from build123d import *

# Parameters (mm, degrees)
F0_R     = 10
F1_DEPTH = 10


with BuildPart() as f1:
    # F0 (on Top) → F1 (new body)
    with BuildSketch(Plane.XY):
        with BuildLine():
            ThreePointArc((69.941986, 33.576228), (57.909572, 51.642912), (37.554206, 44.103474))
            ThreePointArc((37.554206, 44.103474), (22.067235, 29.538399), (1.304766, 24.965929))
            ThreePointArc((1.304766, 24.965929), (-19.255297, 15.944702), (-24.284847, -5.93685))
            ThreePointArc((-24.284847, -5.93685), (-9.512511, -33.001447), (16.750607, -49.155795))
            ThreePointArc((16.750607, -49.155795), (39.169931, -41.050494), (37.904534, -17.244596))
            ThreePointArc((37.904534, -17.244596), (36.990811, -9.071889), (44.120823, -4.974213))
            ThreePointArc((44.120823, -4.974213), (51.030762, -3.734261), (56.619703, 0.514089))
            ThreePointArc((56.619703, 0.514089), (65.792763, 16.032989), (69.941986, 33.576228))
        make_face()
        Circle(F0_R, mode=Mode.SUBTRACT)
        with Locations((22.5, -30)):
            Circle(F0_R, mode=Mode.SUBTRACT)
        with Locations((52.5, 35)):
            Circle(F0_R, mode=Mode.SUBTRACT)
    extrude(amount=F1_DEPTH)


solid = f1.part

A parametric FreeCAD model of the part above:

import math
import FreeCAD as App
import Part
import Sketcher

V = App.Vector

doc = App.newDocument("Part")
body = doc.addObject("PartDesign::Body", "Body")

sketch1 = doc.addObject("Sketcher::SketchObject", "Sketch")
body.addObject(sketch1)
sketch1.AttachmentSupport = (doc.XY_Plane, [""])
sketch1.MapMode = "FlatFace"
sketch1.addGeometry(Part.ArcOfCircle(Part.Circle(V(52.5, 35, 0), V(0, 0, 1), 17.5), math.radians(-4.66665), math.radians(148.65443)), False)
sketch1.addGeometry(Part.ArcOfCircle(Part.Circle(V(3.392392, 64.911412, 0), V(0, 0, 1), 39.999997), math.radians(-92.991664), math.radians(-31.345566)), False)
sketch1.addGeometry(Part.ArcOfCircle(Part.Circle(V(0.000001, 0, 0), V(0, 0, 1), 25.000001), math.radians(87.00834), math.radians(193.737501)), False)
sketch1.addGeometry(Part.ArcOfCircle(Part.Circle(V(33.998785, 8.311588, 0), V(0, 0, 1), 59.999998), math.radians(-166.2625), math.radians(-106.706528)), False)
sketch1.addGeometry(Part.ArcOfCircle(Part.Circle(V(22.5, -30, 0), V(0, 0, 1), 20), math.radians(-106.70653), math.radians(39.625751)), False)
sketch1.addGeometry(Part.ArcOfCircle(Part.Circle(V(43.681234, -12.461319, 0), V(0, 0, 1), 7.5), math.radians(86.639863), math.radians(219.625751)), False)
sketch1.addGeometry(Part.ArcOfCircle(Part.Circle(V(45.000001, 9.999997, 0), V(0, 0, 1), 14.999998), math.radians(-93.360139), math.radians(-39.226968)), False)
sketch1.addGeometry(Part.ArcOfCircle(Part.Circle(V(10.140879, 38.457737, 0), V(0, 0, 1), 60.000013), math.radians(-39.22697), math.radians(-4.666655)), False)
sketch1.addGeometry(Part.Circle(V(22.5, -30, 0), V(0, 0, 1), 10), False)
sketch1.addGeometry(Part.Circle(V(0, 0, 0), V(0, 0, 1), 10), False)
sketch1.addGeometry(Part.Circle(V(52.5, 35, 0), V(0, 0, 1), 10), False)
sketch1.addConstraint(Sketcher.Constraint("Tangent", 0, 2, 1, 2))
sketch1.addConstraint(Sketcher.Constraint("Tangent", 1, 1, 2, 1))
sketch1.addConstraint(Sketcher.Constraint("Tangent", 2, 2, 3, 1))
sketch1.addConstraint(Sketcher.Constraint("Tangent", 3, 2, 4, 1))
sketch1.addConstraint(Sketcher.Constraint("Tangent", 4, 2, 5, 2))
sketch1.addConstraint(Sketcher.Constraint("Tangent", 5, 1, 6, 1))
sketch1.addConstraint(Sketcher.Constraint("Tangent", 6, 2, 7, 1))
sketch1.addConstraint(Sketcher.Constraint("Tangent", 7, 2, 0, 1))
sketch1.addConstraint(Sketcher.Constraint("Coincident", 2, 3, -1, 1))
sketch1.addConstraint(Sketcher.Constraint("Coincident", 9, 3, -1, 1))
sketch1.addConstraint(Sketcher.Constraint("Coincident", 8, 3, 4, 3))
sketch1.addConstraint(Sketcher.Constraint("Coincident", 10, 3, 0, 3))
sketch1.addConstraint(Sketcher.Constraint("Equal", 8, 9))
sketch1.addConstraint(Sketcher.Constraint("Equal", 9, 10))
sketch1.addConstraint(Sketcher.Constraint("Diameter", 8, 20.0))
sketch1.addConstraint(Sketcher.Constraint("Radius", 2, 25.000001))
sketch1.addConstraint(Sketcher.Constraint("Radius", 3, 59.999998))
sketch1.addConstraint(Sketcher.Constraint("Radius", 4, 20.0))
sketch1.addConstraint(Sketcher.Constraint("Radius", 0, 17.5))
sketch1.addConstraint(Sketcher.Constraint("Radius", 5, 7.5))
sketch1.addConstraint(Sketcher.Constraint("DistanceY", -1, 1, 0, 3, 35.0))
sketch1.addConstraint(Sketcher.Constraint("DistanceY", 4, 3, -1, 1, 30.0))
sketch1.addConstraint(Sketcher.Constraint("DistanceX", -1, 1, 6, 3, 45.000001))
sketch1.addConstraint(Sketcher.Constraint("DistanceX", 4, 3, 0, 3, 29.999999))
sketch1.addConstraint(Sketcher.Constraint("DistanceX", -1, 1, 0, 3, 52.5))
sketch1.addConstraint(Sketcher.Constraint("Radius", 1, 39.999997))
sketch1.addConstraint(Sketcher.Constraint("Radius", 6, 14.999998))
sketch1.addConstraint(Sketcher.Constraint("Radius", 7, 60.000013))
sketch1.addConstraint(Sketcher.Constraint("DistanceX", 4, 2, 5, 3, 5.7767))
pad1 = doc.addObject("PartDesign::Pad", "Pad")
body.addObject(pad1)
pad1.Profile = sketch1
pad1.Length = 10

doc.recompute()
